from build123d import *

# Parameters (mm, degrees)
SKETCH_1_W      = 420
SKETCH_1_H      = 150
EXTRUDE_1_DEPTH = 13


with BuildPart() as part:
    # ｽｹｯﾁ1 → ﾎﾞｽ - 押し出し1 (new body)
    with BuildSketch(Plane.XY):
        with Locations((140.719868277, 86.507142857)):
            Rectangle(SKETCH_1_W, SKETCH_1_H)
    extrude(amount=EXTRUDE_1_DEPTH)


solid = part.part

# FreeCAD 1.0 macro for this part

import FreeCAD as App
import Part
import Sketcher
Q = App.Units.Quantity


def add_polygon(sketch, points):
    """Adds a closed chain of lines whose ends are joined by coincident constraints."""
    first, n = sketch.GeometryCount, len(points)
    for a, b in zip(points, points[1:] + points[:1]):
        sketch.addGeometry(Part.LineSegment(App.Vector(*a, 0), App.Vector(*b, 0)), False)
    for i in range(n):
        sketch.addConstraint(Sketcher.Constraint("Coincident", first + i, 2, first + (i + 1) % n, 1))

doc = App.newDocument("Part")
body = doc.addObject("PartDesign::Body", "Body")

# Sketch on XY plane
sketch1 = body.newObject("Sketcher::SketchObject", "Sketch")
sketch1.AttachmentSupport = (doc.getObject("XY_Plane"), [""])
sketch1.MapMode = "FlatFace"
add_polygon(sketch1, [(-69.280132, 161.507143), (-69.280132, 11.507143), (350.719868, 11.507143), (350.719868, 161.507143)])  # lines 0-3
sketch1.addConstraint(Sketcher.Constraint("Vertical", 0))
sketch1.addConstraint(Sketcher.Constraint("Horizontal", 1))
sketch1.addConstraint(Sketcher.Constraint("Vertical", 2))
sketch1.addConstraint(Sketcher.Constraint("Horizontal", 3))
sketch1.addConstraint(Sketcher.Constraint("DistanceX", 1, 1, 1, 2, Q("420 mm")))
sketch1.addConstraint(Sketcher.Constraint("DistanceY", 0, 2, 0, 1, Q("150 mm")))
sketch1.addConstraint(Sketcher.Constraint("DistanceX", 0, 2, -1, 1, Q("69.280132 mm")))
sketch1.addConstraint(Sketcher.Constraint("DistanceY", -1, 1, 0, 2, Q("11.507143 mm")))
pad1 = body.newObject("PartDesign::Pad", "Pad")
pad1.Profile = sketch1
pad1.Length = 13

doc.recompute()
